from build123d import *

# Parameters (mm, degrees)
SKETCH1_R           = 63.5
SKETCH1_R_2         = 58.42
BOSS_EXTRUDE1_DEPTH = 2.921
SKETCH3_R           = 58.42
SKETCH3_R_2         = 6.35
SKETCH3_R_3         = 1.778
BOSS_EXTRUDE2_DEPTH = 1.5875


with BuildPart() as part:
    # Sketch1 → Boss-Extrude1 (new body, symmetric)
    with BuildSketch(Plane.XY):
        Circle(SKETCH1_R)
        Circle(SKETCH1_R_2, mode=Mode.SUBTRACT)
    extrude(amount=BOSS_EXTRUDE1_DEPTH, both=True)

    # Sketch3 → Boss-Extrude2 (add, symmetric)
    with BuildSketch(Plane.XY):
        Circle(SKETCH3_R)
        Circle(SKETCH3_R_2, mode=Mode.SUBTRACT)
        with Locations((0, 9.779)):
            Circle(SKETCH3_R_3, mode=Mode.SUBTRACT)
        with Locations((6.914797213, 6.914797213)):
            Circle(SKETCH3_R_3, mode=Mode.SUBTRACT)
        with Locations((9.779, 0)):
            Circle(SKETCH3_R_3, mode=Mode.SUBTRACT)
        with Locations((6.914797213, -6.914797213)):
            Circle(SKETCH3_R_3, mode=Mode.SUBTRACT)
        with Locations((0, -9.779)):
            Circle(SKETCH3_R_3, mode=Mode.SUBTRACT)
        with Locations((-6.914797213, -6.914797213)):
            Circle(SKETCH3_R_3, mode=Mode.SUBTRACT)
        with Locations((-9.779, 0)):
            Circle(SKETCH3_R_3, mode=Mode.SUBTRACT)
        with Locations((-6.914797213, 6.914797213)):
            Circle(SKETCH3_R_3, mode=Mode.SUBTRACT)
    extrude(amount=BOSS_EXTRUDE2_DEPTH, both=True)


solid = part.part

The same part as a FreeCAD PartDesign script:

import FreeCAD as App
import Part
import Sketcher
from FreeCAD import Vector
Q = App.Units.Quantity

doc = App.newDocument("Part")
body = doc.addObject("PartDesign::Body", "Body")

# Sketch on XY plane
sketch1 = body.newObject("Sketcher::SketchObject", "Sketch")
sketch1.AttachmentSupport = (doc.getObject("XY_Plane"), [""])
sketch1.MapMode = "FlatFace"
sketch1.addGeometry([
    Part.Circle(Vector(0, 0, 0), Vector(0, 0, 1), 64),
    Part.Circle(Vector(0, 0, 0), Vector(0, 0, 1), 58),
], False)
sketch1.addConstraint([
    Sketcher.Constraint("Coincident", 0, 3, -1, 1),
    Sketcher.Constraint("Coincident", 1, 3, -1, 1),
    Sketcher.Constraint("Diameter", 0, Q("5 in")),
    Sketcher.Constraint("Diameter", 1, Q("4.6 in")),
])
pad1 = body.newObject("PartDesign::Pad", "Pad")
pad1.Profile = sketch1
pad1.Length = Q("0.23 in")
pad1.Midplane = True

# Sketch on XY plane
sketch2 = body.newObject("Sketcher::SketchObject", "Sketch001")
sketch2.AttachmentSupport = (doc.getObject("XY_Plane"), [""])
sketch2.MapMode = "FlatFace"
sketch2.addGeometry([
    Part.Circle(Vector(0, 0, 0), Vector(0, 0, 1), 58.4),  # 0
    Part.Circle(Vector(-6.9, -6.9, 0), Vector(0, 0, 1), 1.8),  # 1
    Part.Circle(Vector(0, -9.8, 0), Vector(0, 0, 1), 1.8),  # 2
    Part.Circle(Vector(-9.8, 0, 0), Vector(0, 0, 1), 1.8),  # 3
    Part.Circle(Vector(6.9, -6.9, 0), Vector(0, 0, 1), 1.8),  # 4
    Part.Circle(Vector(9.8, 0, 0), Vector(0, 0, 1), 1.8),  # 5
    Part.Circle(Vector(0, 0, 0), Vector(0, 0, 1), 6.3),  # 6
    Part.Circle(Vector(-6.9, 6.9, 0), Vector(0, 0, 1), 1.8),  # 7
    Part.Circle(Vector(0, 9.8, 0), Vector(0, 0, 1), 1.8),  # 8
    Part.Circle(Vector(6.9, 6.9, 0), Vector(0, 0, 1), 1.8),  # 9
], False)
sketch2.addConstraint([
    Sketcher.Constraint("Coincident", 0, 3, -1, 1),
    Sketcher.Constraint("Coincident", 6, 3, -1, 1),
    Sketcher.Constraint("Equal", 1, 2),
    Sketcher.Constraint("Equal", 2, 3),
    Sketcher.Constraint("Equal", 3, 4),
    Sketcher.Constraint("Equal", 4, 5),
    Sketcher.Constraint("Equal", 5, 7),
    Sketcher.Constraint("Equal", 7, 8),
    Sketcher.Constraint("Equal", 8, 9),
    Sketcher.Constraint("Symmetric", 3, 3, 5, 3, -1, 1),
    Sketcher.Constraint("Symmetric", 4, 3, 7, 3, -1, 1),
    Sketcher.Constraint("Symmetric", 2, 3, 8, 3, -1, 1),
    Sketcher.Constraint("Symmetric", 1, 3, 9, 3, -1, 1),
    Sketcher.Constraint("Symmetric", 1, 3, 4, 3, -2),
    Sketcher.Constraint("PointOnObject", 2, 3, -2),
    Sketcher.Constraint("PointOnObject", 3, 3, -1),
    Sketcher.Constraint("Diameter", 0, Q("4.6 in")),
    Sketcher.Constraint("Diameter", 6, Q("0.5 in")),
    Sketcher.Constraint("Diameter", 1, Q("0.14 in")),
    Sketcher.Constraint("DistanceX", 3, 3, 5, 3, Q("0.77 in")),
    Sketcher.Constraint("DistanceY", 2, 3, -1, 1, Q("0.385 in")),
    Sketcher.Constraint("DistanceX", 1, 3, -1, 1, 6.914797),
    Sketcher.Constraint("DistanceY", 1, 3, -1, 1, 6.914797),
])
pad2 = body.newObject("PartDesign::Pad", "Pad001")
pad2.Profile = sketch2
pad2.Length = Q("0.125 in")
pad2.Midplane = True

doc.recompute()
